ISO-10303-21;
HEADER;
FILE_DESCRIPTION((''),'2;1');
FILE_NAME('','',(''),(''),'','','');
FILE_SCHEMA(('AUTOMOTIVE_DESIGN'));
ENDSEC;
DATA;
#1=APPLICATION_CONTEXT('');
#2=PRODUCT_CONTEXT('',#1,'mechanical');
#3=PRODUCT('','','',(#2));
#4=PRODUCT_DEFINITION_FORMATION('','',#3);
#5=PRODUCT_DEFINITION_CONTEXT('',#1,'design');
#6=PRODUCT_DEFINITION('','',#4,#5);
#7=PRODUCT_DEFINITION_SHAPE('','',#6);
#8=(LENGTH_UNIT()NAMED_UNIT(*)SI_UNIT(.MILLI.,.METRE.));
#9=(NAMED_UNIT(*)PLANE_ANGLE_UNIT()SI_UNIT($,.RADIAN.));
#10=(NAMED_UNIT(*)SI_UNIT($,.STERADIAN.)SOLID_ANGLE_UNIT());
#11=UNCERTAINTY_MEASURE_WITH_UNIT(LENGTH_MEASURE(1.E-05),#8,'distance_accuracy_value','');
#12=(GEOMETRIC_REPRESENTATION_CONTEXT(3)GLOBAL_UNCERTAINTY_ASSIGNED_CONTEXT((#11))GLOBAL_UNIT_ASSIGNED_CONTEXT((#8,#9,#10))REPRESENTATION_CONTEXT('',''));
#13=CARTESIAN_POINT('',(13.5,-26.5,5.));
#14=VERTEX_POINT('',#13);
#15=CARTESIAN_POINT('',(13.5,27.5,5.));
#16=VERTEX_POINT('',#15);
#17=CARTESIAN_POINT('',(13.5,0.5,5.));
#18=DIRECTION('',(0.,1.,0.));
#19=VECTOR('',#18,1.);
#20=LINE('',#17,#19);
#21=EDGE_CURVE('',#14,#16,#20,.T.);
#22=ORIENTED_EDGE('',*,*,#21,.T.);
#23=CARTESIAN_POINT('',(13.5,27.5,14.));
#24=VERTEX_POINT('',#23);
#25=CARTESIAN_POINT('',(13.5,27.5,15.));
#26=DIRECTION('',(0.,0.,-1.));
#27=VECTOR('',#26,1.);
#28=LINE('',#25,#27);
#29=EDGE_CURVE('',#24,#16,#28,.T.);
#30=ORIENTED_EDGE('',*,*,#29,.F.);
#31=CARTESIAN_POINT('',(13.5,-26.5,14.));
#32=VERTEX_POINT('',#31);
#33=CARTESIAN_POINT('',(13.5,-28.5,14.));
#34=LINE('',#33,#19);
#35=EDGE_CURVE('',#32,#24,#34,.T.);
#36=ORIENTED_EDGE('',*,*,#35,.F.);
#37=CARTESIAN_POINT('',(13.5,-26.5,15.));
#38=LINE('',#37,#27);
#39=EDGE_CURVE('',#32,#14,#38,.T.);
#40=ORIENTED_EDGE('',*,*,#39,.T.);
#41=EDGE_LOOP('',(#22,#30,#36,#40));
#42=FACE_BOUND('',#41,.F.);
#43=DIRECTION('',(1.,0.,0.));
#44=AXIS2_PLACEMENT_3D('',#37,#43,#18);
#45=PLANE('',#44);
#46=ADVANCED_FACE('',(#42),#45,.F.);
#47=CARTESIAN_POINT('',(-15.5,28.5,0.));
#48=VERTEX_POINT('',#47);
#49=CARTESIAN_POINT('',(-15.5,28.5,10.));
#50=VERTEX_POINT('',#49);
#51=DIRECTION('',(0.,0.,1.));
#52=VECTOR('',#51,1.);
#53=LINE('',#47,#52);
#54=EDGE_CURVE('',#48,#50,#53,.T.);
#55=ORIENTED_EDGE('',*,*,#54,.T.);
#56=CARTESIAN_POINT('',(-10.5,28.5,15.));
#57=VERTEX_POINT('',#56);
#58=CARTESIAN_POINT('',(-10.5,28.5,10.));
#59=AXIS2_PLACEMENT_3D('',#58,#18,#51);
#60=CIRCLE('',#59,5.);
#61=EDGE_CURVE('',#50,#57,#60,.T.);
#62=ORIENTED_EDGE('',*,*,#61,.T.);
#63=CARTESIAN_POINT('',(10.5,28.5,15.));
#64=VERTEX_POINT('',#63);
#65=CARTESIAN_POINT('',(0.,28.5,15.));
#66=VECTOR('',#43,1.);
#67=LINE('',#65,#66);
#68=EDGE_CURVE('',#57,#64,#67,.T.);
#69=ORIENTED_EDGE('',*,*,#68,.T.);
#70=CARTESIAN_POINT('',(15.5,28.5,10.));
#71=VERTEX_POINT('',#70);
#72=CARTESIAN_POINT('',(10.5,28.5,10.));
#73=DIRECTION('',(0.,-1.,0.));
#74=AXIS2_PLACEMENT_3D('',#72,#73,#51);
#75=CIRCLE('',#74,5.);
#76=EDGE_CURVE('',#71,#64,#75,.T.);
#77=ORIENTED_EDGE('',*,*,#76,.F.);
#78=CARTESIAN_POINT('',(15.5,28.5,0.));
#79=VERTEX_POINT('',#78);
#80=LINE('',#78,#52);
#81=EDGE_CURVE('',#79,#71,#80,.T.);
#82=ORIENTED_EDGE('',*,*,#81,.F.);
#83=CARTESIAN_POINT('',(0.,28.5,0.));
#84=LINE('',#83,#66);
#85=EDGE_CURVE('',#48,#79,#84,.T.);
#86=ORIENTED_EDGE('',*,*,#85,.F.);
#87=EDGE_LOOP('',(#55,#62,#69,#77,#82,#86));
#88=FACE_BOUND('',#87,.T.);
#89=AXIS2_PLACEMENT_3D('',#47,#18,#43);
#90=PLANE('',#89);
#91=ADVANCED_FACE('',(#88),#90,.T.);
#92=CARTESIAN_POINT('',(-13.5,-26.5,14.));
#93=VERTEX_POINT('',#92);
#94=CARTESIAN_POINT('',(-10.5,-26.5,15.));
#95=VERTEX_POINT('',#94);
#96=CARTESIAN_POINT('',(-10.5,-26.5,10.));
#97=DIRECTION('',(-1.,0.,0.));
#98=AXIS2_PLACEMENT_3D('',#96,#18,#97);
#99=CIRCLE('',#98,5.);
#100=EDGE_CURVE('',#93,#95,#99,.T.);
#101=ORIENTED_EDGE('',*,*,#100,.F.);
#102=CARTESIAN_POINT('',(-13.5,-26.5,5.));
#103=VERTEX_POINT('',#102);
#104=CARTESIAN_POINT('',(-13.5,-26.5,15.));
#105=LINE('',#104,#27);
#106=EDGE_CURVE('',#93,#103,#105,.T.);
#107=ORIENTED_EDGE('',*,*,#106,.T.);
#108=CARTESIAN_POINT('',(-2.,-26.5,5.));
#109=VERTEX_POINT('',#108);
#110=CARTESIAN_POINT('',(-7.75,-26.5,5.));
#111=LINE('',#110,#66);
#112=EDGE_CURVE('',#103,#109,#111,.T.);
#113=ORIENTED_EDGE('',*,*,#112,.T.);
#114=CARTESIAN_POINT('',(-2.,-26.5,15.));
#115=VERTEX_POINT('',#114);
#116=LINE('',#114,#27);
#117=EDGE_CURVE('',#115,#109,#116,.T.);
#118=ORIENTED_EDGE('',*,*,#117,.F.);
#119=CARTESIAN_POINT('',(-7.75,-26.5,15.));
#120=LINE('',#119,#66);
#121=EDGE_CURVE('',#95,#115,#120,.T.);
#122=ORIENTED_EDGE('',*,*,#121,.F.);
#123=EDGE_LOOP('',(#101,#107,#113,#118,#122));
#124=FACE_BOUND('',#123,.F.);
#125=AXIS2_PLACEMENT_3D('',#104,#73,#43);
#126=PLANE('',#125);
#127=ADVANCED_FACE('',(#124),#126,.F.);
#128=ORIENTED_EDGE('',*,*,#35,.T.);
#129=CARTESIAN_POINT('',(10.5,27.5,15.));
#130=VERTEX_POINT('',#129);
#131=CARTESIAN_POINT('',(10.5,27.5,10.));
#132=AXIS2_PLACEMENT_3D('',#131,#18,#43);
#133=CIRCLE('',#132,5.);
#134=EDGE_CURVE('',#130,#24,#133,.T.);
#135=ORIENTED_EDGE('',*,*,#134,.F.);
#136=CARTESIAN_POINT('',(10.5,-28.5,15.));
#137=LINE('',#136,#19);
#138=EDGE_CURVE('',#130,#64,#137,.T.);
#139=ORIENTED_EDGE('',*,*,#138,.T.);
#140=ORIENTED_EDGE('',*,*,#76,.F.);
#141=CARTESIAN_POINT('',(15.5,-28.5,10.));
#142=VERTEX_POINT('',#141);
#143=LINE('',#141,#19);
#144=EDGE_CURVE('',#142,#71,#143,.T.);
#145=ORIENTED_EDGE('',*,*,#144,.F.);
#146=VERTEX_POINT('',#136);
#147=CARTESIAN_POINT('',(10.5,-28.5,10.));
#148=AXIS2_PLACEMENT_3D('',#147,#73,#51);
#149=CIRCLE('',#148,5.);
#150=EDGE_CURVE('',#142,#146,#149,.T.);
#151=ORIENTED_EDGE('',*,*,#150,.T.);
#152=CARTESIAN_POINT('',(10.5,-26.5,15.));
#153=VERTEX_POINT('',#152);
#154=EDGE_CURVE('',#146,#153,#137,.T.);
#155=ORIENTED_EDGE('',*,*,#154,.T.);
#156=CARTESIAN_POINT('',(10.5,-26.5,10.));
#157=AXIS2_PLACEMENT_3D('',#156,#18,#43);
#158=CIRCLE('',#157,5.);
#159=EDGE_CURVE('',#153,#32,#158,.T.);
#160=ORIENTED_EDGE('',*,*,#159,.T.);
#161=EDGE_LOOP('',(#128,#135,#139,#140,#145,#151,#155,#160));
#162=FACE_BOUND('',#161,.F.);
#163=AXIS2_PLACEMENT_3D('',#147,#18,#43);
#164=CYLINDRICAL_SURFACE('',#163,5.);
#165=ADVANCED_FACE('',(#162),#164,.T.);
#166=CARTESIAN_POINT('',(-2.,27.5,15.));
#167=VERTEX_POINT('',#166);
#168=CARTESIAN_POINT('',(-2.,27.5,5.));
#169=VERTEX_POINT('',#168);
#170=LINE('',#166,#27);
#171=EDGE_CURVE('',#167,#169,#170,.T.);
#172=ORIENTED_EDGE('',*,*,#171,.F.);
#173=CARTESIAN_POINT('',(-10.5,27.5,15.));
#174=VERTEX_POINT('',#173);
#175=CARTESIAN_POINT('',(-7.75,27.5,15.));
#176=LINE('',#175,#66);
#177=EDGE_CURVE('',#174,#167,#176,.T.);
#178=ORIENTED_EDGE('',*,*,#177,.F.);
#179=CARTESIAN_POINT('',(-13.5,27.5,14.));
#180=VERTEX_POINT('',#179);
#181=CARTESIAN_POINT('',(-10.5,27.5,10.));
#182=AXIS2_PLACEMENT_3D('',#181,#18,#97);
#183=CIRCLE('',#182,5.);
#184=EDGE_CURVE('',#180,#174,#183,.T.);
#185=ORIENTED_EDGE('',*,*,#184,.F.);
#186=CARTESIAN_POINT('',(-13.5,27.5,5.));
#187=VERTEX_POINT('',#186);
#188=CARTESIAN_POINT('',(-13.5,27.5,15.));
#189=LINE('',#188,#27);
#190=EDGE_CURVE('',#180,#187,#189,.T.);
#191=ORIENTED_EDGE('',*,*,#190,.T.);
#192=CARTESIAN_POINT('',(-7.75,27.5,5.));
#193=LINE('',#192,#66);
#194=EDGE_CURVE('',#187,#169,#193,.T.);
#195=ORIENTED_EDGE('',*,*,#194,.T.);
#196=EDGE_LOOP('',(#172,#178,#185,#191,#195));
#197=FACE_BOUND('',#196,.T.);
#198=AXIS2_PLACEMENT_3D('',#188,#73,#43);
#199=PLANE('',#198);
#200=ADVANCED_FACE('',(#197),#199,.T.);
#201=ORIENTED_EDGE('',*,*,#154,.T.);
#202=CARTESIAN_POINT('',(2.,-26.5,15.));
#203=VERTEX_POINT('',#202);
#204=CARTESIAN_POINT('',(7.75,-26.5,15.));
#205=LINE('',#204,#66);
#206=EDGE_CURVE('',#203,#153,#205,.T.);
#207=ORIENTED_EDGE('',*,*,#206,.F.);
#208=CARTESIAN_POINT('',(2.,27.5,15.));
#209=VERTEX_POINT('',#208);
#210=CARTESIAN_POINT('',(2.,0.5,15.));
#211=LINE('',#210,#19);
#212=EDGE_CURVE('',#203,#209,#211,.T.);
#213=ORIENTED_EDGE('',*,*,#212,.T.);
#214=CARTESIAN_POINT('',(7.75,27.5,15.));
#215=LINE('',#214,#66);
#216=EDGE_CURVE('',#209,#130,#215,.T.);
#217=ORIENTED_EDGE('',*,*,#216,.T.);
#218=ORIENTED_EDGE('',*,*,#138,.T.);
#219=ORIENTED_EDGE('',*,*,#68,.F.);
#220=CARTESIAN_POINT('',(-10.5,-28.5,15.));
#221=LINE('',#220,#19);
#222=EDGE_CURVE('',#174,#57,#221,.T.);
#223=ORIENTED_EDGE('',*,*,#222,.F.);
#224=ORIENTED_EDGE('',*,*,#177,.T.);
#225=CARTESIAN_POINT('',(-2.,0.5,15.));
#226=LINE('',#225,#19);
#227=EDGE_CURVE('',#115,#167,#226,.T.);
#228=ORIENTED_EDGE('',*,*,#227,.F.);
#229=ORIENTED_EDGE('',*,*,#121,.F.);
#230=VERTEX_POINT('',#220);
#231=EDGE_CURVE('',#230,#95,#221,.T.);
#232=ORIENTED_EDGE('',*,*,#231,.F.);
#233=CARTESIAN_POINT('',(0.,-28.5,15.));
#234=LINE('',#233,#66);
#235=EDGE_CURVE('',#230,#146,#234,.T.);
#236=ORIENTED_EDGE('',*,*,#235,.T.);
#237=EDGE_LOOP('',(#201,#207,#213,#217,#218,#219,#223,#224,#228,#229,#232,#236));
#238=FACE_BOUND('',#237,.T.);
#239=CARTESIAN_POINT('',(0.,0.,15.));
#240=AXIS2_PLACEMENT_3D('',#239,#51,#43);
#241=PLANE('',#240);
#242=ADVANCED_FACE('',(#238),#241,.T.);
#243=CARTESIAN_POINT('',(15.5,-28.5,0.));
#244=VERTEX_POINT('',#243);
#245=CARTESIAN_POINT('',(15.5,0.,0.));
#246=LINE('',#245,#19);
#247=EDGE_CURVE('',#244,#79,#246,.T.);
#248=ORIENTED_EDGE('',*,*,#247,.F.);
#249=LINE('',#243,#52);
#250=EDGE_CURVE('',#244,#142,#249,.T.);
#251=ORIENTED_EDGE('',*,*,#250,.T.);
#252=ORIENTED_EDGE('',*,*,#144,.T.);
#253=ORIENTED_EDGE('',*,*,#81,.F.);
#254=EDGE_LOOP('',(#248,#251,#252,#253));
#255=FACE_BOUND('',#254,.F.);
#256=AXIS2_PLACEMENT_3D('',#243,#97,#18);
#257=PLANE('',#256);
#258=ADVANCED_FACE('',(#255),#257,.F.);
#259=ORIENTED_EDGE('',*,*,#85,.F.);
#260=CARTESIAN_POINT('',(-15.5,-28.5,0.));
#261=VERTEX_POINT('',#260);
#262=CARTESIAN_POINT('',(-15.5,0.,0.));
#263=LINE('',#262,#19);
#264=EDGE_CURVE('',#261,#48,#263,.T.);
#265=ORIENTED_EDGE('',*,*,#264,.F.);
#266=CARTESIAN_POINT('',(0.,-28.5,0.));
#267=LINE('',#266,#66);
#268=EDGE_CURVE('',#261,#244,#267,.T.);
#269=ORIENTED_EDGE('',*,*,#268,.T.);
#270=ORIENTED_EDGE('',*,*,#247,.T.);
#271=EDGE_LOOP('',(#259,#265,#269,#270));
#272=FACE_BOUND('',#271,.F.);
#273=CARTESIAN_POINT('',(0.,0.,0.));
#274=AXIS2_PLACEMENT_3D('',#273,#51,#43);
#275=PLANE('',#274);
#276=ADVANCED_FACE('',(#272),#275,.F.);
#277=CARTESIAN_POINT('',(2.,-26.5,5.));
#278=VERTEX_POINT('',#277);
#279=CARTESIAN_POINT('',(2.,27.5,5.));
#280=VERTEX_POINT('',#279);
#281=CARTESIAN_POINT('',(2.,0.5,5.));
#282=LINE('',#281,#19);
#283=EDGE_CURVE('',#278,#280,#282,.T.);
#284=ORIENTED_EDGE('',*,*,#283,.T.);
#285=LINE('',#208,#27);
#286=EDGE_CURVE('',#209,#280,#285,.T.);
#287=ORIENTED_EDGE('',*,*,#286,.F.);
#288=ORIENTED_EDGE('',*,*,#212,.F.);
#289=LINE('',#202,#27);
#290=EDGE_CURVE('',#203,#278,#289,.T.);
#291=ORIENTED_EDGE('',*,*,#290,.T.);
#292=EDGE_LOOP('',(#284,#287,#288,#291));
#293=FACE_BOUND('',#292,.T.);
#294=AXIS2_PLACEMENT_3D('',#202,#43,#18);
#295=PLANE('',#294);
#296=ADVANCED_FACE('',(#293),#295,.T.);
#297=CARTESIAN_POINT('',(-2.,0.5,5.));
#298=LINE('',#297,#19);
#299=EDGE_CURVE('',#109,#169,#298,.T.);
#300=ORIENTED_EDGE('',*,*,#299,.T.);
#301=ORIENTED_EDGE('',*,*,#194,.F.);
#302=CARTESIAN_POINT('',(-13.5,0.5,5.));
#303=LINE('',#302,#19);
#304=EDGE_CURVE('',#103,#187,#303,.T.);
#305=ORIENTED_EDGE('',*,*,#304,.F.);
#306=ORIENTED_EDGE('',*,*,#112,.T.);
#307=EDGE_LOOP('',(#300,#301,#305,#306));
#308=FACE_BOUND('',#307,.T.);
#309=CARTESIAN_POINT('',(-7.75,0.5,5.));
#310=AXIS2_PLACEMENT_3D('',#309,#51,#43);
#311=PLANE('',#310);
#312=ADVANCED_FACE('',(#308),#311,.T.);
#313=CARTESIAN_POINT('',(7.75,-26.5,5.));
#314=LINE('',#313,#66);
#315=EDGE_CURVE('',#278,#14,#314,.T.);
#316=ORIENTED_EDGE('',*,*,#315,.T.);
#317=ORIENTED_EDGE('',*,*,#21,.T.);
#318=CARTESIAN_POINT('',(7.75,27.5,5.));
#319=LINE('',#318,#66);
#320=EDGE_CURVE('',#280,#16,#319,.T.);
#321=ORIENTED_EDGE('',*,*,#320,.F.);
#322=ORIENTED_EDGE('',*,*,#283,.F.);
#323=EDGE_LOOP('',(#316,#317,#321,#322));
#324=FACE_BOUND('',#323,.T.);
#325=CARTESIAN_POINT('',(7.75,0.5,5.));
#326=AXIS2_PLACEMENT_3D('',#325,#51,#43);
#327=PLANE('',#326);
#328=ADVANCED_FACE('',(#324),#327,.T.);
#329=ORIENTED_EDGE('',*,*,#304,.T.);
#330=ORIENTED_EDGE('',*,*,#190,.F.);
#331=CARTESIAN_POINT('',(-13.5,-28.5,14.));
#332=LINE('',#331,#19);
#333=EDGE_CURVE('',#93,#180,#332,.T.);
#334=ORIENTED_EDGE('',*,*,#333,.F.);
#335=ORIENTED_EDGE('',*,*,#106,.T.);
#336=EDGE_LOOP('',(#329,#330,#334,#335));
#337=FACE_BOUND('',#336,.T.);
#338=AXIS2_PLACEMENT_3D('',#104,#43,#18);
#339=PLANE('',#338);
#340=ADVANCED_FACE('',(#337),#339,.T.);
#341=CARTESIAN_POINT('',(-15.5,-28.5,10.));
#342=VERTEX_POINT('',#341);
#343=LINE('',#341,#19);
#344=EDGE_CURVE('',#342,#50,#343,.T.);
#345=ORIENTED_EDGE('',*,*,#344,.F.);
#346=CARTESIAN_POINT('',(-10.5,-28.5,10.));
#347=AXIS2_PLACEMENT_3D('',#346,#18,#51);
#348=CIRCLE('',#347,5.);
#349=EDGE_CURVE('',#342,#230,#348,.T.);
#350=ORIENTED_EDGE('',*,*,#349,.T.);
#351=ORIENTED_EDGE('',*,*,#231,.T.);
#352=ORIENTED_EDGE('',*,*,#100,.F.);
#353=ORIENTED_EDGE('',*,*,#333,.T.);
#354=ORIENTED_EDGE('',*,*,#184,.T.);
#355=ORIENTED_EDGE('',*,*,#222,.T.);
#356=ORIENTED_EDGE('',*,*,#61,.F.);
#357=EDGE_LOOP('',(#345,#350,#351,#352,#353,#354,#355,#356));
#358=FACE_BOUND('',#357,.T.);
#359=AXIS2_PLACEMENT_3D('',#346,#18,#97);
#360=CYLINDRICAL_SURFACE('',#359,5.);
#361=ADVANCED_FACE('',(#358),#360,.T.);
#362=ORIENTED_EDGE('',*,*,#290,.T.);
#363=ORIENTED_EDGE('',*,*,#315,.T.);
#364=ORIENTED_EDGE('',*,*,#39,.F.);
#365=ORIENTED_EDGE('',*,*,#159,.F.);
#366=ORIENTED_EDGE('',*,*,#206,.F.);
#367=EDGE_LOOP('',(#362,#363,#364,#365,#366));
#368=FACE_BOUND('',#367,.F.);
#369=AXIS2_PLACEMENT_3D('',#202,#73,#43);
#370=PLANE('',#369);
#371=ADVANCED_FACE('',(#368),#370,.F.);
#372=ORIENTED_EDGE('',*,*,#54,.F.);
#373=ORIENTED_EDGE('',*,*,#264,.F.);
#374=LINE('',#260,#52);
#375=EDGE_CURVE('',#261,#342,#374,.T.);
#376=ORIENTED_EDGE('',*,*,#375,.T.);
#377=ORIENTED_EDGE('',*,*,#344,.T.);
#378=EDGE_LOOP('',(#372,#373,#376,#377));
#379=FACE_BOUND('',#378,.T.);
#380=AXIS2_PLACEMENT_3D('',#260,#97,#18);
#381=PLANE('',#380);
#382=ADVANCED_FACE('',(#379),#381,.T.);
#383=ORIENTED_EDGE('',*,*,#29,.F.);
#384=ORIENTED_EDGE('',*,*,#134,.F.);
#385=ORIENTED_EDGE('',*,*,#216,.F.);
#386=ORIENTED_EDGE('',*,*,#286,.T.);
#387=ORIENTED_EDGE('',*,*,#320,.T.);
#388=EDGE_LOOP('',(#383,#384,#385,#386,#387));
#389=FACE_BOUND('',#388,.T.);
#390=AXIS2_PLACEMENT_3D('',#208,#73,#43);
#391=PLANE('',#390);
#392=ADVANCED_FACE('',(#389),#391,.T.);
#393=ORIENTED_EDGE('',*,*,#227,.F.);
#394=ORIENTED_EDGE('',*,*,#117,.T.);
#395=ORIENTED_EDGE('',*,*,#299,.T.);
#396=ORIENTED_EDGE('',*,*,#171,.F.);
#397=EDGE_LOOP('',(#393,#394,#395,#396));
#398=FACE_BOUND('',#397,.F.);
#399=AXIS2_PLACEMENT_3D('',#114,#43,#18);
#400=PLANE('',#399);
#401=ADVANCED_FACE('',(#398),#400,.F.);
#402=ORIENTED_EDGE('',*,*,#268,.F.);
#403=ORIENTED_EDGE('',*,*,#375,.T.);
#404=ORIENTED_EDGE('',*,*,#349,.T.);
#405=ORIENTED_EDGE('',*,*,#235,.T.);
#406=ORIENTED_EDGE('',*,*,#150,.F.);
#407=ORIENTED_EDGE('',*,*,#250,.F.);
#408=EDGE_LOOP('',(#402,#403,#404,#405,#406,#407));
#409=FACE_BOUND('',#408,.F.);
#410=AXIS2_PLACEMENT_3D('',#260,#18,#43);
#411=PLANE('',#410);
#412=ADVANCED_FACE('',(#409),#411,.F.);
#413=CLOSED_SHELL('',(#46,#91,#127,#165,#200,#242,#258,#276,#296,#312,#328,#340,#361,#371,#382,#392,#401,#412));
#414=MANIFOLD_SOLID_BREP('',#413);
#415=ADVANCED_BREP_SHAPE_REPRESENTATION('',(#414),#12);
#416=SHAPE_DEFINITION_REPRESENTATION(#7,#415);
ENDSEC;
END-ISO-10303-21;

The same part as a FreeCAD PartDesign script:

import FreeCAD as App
import Part
import Sketcher

V = App.Vector


def edges_at(feature, points):
    """Names of the edges that pass closest to the given points."""
    edges = feature.Shape.Edges
    near = lambda p: min(range(len(edges)), key=lambda i: edges[i].distToShape(Part.Vertex(*p))[0])
    return sorted({f"Edge{near(p) + 1}" for p in points})

doc = App.newDocument("Part")
body = doc.addObject("PartDesign::Body", "Body")

# Sketch on XY plane
sketch1 = body.newObject("Sketcher::SketchObject", "Sketch")
sketch1.AttachmentSupport = (doc.getObject("XY_Plane"), [""])
sketch1.MapMode = "FlatFace"
sketch1.addGeometry([
    Part.LineSegment(V(-16, 28, 0), V(-16, -28, 0)),
    Part.LineSegment(V(-16, -28, 0), V(16, -28, 0)),
    Part.LineSegment(V(16, -28, 0), V(16, 28, 0)),
    Part.LineSegment(V(16, 28, 0), V(-16, 28, 0)),
], False)
sketch1.addConstraint([
    Sketcher.Constraint("Coincident", 0, 2, 1, 1),
    Sketcher.Constraint("Coincident", 1, 2, 2, 1),
    Sketcher.Constraint("Coincident", 2, 2, 3, 1),
    Sketcher.Constraint("Coincident", 3, 2, 0, 1),
    Sketcher.Constraint("Vertical", 0),
    Sketcher.Constraint("Horizontal", 1),
    Sketcher.Constraint("Vertical", 2),
    Sketcher.Constraint("Horizontal", 3),
    Sketcher.Constraint("Symmetric", 0, 2, 2, 2, -1, 1),
    Sketcher.Constraint("DistanceX", 1, 1, 1, 2, 31.0),
    Sketcher.Constraint("DistanceY", 0, 2, 0, 1, 57.0),
])
pad1 = body.newObject("PartDesign::Pad", "Pad")
pad1.Profile = sketch1
pad1.Length = 15
doc.recompute()

fillet = body.newObject("PartDesign::Fillet", "Fillet")
fillet.Base = (pad1, edges_at(pad1, [(15.5, 0, 15), (-15.5, 0, 15)]))
fillet.Radius = 5

# Sketch on XY plane
sketch2 = body.newObject("Sketcher::SketchObject", "Sketch001")
sketch2.AttachmentSupport = (doc.getObject("XY_Plane"), [""])
sketch2.MapMode = "FlatFace"
sketch2.AttachmentOffset = App.Placement(V(0, 0, 15), App.Rotation())
sketch2.addGeometry([
    Part.LineSegment(V(2, 28, 0), V(2, -26, 0)),  # 0
    Part.LineSegment(V(2, -26, 0), V(14, -26, 0)),  # 1
    Part.LineSegment(V(14, -26, 0), V(14, 28, 0)),  # 2
    Part.LineSegment(V(14, 28, 0), V(2, 28, 0)),  # 3
    Part.LineSegment(V(-14, 28, 0), V(-14, -26, 0)),  # 4
    Part.LineSegment(V(-14, -26, 0), V(-2, -26, 0)),  # 5
    Part.LineSegment(V(-2, -26, 0), V(-2, 28, 0)),  # 6
    Part.LineSegment(V(-2, 28, 0), V(-14, 28, 0)),  # 7
], False)
sketch2.addConstraint([
    Sketcher.Constraint("Coincident", 0, 2, 1, 1),
    Sketcher.Constraint("Coincident", 1, 2, 2, 1),
    Sketcher.Constraint("Coincident", 2, 2, 3, 1),
    Sketcher.Constraint("Coincident", 3, 2, 0, 1),
    Sketcher.Constraint("Coincident", 4, 2, 5, 1),
    Sketcher.Constraint("Coincident", 5, 2, 6, 1),
    Sketcher.Constraint("Coincident", 6, 2, 7, 1),
    Sketcher.Constraint("Coincident", 7, 2, 4, 1),
    Sketcher.Constraint("Vertical", 0),
    Sketcher.Constraint("Horizontal", 1),
    Sketcher.Constraint("Vertical", 2),
    Sketcher.Constraint("Horizontal", 3),
    Sketcher.Constraint("Vertical", 4),
    Sketcher.Constraint("Horizontal", 5),
    Sketcher.Constraint("Vertical", 6),
    Sketcher.Constraint("Horizontal", 7),
    Sketcher.Constraint("Symmetric", 1, 2, 4, 2, -2),
    Sketcher.Constraint("Symmetric", 3, 2, 6, 2, -2),
    Sketcher.Constraint("DistanceY", 0, 2, 0, 1, 54.0),
    Sketcher.Constraint("DistanceX", 1, 1, 1, 2, 11.5),
    Sketcher.Constraint("DistanceX", -1, 1, 0, 2, 2.0),
    Sketcher.Constraint("DistanceY", 0, 2, -1, 1, 26.5),
])
pocket1 = body.newObject("PartDesign::Pocket", "Pocket")
pocket1.Profile = sketch2
pocket1.Length = 10

doc.recompute()
